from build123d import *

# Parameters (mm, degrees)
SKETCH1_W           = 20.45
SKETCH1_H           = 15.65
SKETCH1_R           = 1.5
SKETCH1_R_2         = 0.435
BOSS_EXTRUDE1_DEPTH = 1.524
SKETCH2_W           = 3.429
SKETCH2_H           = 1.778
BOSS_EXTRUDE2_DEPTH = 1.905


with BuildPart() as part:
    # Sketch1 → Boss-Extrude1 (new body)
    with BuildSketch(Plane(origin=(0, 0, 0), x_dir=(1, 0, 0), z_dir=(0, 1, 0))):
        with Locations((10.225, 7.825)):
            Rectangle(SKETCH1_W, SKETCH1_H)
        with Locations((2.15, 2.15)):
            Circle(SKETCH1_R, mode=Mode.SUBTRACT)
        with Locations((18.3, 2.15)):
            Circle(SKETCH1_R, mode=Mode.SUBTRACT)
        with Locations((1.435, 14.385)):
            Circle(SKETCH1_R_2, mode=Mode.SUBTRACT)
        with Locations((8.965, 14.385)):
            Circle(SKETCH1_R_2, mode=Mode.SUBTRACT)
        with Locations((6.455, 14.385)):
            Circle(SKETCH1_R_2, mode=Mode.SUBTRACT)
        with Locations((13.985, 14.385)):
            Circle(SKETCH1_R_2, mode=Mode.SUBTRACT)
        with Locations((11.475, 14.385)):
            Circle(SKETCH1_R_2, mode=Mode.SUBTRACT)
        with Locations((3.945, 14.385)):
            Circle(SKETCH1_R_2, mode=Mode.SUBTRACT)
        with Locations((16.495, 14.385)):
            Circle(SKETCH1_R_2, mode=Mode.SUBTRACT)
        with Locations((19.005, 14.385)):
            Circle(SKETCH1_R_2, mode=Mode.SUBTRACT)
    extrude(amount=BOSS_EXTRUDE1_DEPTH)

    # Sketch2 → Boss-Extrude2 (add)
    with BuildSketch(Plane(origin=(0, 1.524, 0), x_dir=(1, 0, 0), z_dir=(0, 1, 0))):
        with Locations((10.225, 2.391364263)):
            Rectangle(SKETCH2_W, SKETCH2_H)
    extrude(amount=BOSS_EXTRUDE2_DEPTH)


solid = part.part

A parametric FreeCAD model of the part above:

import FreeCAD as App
import Part
import Sketcher
from FreeCAD import Vector
Q = App.Units.Quantity


def add_polygon(sketch, points):
    """Adds a closed chain of lines whose ends are joined by coincident constraints."""
    first, n = sketch.GeometryCount, len(points)
    for a, b in zip(points, points[1:] + points[:1]):
        sketch.addGeometry(Part.LineSegment(App.Vector(*a, 0), App.Vector(*b, 0)), False)
    for i in range(n):
        sketch.addConstraint(Sketcher.Constraint("Coincident", first + i, 2, first + (i + 1) % n, 1))

doc = App.newDocument("Part")
body = doc.addObject("PartDesign::Body", "Body")

# Sketch on XZ plane
sketch1 = doc.addObject("Sketcher::SketchObject", "Sketch")
body.addObject(sketch1)
sketch1.AttachmentSupport = (doc.XZ_Plane, [""])
sketch1.MapMode = "FlatFace"
add_polygon(sketch1, [(0, -15.65), (0, 0), (20.45, 0), (20.45, -15.65)])  # lines 0-3
sketch1.addGeometry(Part.Circle(Vector(2.15, -2.15, 0), Vector(0, 0, 1), 1.5), False)  # 4
sketch1.addGeometry(Part.Circle(Vector(18.3, -2.15, 0), Vector(0, 0, 1), 1.5), False)  # 5
sketch1.addGeometry(Part.Circle(Vector(1.44, -14.38, 0), Vector(0, 0, 1), 0.43), False)  # 6
sketch1.addGeometry(Part.Circle(Vector(3.94, -14.38, 0), Vector(0, 0, 1), 0.43), False)  # 7
sketch1.addGeometry(Part.Circle(Vector(6.46, -14.38, 0), Vector(0, 0, 1), 0.43), False)  # 8
sketch1.addGeometry(Part.Circle(Vector(8.96, -14.38, 0), Vector(0, 0, 1), 0.43), False)  # 9
sketch1.addGeometry(Part.Circle(Vector(11.47, -14.38, 0), Vector(0, 0, 1), 0.43), False)  # 10
sketch1.addGeometry(Part.Circle(Vector(13.98, -14.38, 0), Vector(0, 0, 1), 0.43), False)  # 11
sketch1.addGeometry(Part.Circle(Vector(16.5, -14.38, 0), Vector(0, 0, 1), 0.43), False)  # 12
sketch1.addGeometry(Part.Circle(Vector(19, -14.38, 0), Vector(0, 0, 1), 0.43), False)  # 13
sketch1.addConstraint(Sketcher.Constraint("Vertical", 0))
sketch1.addConstraint(Sketcher.Constraint("Horizontal", 1))
sketch1.addConstraint(Sketcher.Constraint("Vertical", 2))
sketch1.addConstraint(Sketcher.Constraint("Horizontal", 3))
sketch1.addConstraint(Sketcher.Constraint("Coincident", 0, 2, -1, 1))
sketch1.addConstraint(Sketcher.Constraint("Equal", 4, 5))
sketch1.addConstraint(Sketcher.Constraint("Equal", 6, 7))
sketch1.addConstraint(Sketcher.Constraint("Equal", 7, 8))
sketch1.addConstraint(Sketcher.Constraint("Equal", 8, 9))
sketch1.addConstraint(Sketcher.Constraint("Equal", 9, 10))
sketch1.addConstraint(Sketcher.Constraint("Equal", 10, 11))
sketch1.addConstraint(Sketcher.Constraint("Equal", 11, 12))
sketch1.addConstraint(Sketcher.Constraint("Equal", 12, 13))
sketch1.addConstraint(Sketcher.Constraint("Horizontal", 4, 3, 5, 3))
sketch1.addConstraint(Sketcher.Constraint("Horizontal", 6, 3, 7, 3))
sketch1.addConstraint(Sketcher.Constraint("Horizontal", 7, 3, 8, 3))
sketch1.addConstraint(Sketcher.Constraint("Horizontal", 8, 3, 9, 3))
sketch1.addConstraint(Sketcher.Constraint("Horizontal", 9, 3, 10, 3))
sketch1.addConstraint(Sketcher.Constraint("Horizontal", 10, 3, 11, 3))
sketch1.addConstraint(Sketcher.Constraint("Horizontal", 11, 3, 12, 3))
sketch1.addConstraint(Sketcher.Constraint("Horizontal", 12, 3, 13, 3))
sketch1.addConstraint(Sketcher.Constraint("Diameter", 4, 3.0))
sketch1.addConstraint(Sketcher.Constraint("Diameter", 6, 0.87))
sketch1.addConstraint(Sketcher.Constraint("DistanceX", 1, 1, 1, 2, 20.45))
sketch1.addConstraint(Sketcher.Constraint("DistanceY", 0, 1, 0, 2, 15.65))
sketch1.addConstraint(Sketcher.Constraint("DistanceX", -1, 1, 4, 3, 2.15))
sketch1.addConstraint(Sketcher.Constraint("DistanceY", 4, 3, -1, 1, 2.15))
sketch1.addConstraint(Sketcher.Constraint("DistanceX", -1, 1, 5, 3, 18.3))
sketch1.addConstraint(Sketcher.Constraint("DistanceX", -1, 1, 6, 3, 1.435))
sketch1.addConstraint(Sketcher.Constraint("DistanceY", 6, 3, -1, 1, 14.385))
sketch1.addConstraint(Sketcher.Constraint("DistanceX", -1, 1, 7, 3, 3.945))
sketch1.addConstraint(Sketcher.Constraint("DistanceX", -1, 1, 8, 3, 6.455))
sketch1.addConstraint(Sketcher.Constraint("DistanceX", -1, 1, 9, 3, 8.965))
sketch1.addConstraint(Sketcher.Constraint("DistanceX", -1, 1, 10, 3, 11.475))
sketch1.addConstraint(Sketcher.Constraint("DistanceX", -1, 1, 11, 3, 13.985))
sketch1.addConstraint(Sketcher.Constraint("DistanceX", -1, 1, 12, 3, 16.495))
sketch1.addConstraint(Sketcher.Constraint("DistanceX", -1, 1, 13, 3, 19.005))
pad1 = doc.addObject("PartDesign::Pad", "Pad")
body.addObject(pad1)
pad1.Profile = sketch1
pad1.Length = Q("0.06 in")
pad1.Reversed = True

# Sketch on XZ plane
sketch2 = doc.addObject("Sketcher::SketchObject", "Sketch001")
body.addObject(sketch2)
sketch2.AttachmentSupport = (doc.XZ_Plane, [""])
sketch2.MapMode = "FlatFace"
sketch2.AttachmentOffset = App.Placement(Vector(0, 0, -0.06 * 25.4), App.Rotation())
add_polygon(sketch2, [(8.5, -3.3), (8.5, -1.5), (11.9, -1.5), (11.9, -3.3)])  # lines 0-3
sketch2.addConstraint(Sketcher.Constraint("Vertical", 0))
sketch2.addConstraint(Sketcher.Constraint("Horizontal", 1))
sketch2.addConstraint(Sketcher.Constraint("Vertical", 2))
sketch2.addConstraint(Sketcher.Constraint("Horizontal", 3))
sketch2.addConstraint(Sketcher.Constraint("DistanceY", 0, 1, 0, 2, Q("0.07 in")))
sketch2.addConstraint(Sketcher.Constraint("DistanceX", 1, 1, 1, 2, Q("0.135 in")))
sketch2.addConstraint(Sketcher.Constraint("DistanceX", -1, 1, 0, 2, 8.5105))
sketch2.addConstraint(Sketcher.Constraint("DistanceY", 0, 2, -1, 1, 1.502364))
pad2 = doc.addObject("PartDesign::Pad", "Pad001")
body.addObject(pad2)
pad2.Profile = sketch2
pad2.Length = Q("0.075 in")
pad2.Reversed = True

doc.recompute()
